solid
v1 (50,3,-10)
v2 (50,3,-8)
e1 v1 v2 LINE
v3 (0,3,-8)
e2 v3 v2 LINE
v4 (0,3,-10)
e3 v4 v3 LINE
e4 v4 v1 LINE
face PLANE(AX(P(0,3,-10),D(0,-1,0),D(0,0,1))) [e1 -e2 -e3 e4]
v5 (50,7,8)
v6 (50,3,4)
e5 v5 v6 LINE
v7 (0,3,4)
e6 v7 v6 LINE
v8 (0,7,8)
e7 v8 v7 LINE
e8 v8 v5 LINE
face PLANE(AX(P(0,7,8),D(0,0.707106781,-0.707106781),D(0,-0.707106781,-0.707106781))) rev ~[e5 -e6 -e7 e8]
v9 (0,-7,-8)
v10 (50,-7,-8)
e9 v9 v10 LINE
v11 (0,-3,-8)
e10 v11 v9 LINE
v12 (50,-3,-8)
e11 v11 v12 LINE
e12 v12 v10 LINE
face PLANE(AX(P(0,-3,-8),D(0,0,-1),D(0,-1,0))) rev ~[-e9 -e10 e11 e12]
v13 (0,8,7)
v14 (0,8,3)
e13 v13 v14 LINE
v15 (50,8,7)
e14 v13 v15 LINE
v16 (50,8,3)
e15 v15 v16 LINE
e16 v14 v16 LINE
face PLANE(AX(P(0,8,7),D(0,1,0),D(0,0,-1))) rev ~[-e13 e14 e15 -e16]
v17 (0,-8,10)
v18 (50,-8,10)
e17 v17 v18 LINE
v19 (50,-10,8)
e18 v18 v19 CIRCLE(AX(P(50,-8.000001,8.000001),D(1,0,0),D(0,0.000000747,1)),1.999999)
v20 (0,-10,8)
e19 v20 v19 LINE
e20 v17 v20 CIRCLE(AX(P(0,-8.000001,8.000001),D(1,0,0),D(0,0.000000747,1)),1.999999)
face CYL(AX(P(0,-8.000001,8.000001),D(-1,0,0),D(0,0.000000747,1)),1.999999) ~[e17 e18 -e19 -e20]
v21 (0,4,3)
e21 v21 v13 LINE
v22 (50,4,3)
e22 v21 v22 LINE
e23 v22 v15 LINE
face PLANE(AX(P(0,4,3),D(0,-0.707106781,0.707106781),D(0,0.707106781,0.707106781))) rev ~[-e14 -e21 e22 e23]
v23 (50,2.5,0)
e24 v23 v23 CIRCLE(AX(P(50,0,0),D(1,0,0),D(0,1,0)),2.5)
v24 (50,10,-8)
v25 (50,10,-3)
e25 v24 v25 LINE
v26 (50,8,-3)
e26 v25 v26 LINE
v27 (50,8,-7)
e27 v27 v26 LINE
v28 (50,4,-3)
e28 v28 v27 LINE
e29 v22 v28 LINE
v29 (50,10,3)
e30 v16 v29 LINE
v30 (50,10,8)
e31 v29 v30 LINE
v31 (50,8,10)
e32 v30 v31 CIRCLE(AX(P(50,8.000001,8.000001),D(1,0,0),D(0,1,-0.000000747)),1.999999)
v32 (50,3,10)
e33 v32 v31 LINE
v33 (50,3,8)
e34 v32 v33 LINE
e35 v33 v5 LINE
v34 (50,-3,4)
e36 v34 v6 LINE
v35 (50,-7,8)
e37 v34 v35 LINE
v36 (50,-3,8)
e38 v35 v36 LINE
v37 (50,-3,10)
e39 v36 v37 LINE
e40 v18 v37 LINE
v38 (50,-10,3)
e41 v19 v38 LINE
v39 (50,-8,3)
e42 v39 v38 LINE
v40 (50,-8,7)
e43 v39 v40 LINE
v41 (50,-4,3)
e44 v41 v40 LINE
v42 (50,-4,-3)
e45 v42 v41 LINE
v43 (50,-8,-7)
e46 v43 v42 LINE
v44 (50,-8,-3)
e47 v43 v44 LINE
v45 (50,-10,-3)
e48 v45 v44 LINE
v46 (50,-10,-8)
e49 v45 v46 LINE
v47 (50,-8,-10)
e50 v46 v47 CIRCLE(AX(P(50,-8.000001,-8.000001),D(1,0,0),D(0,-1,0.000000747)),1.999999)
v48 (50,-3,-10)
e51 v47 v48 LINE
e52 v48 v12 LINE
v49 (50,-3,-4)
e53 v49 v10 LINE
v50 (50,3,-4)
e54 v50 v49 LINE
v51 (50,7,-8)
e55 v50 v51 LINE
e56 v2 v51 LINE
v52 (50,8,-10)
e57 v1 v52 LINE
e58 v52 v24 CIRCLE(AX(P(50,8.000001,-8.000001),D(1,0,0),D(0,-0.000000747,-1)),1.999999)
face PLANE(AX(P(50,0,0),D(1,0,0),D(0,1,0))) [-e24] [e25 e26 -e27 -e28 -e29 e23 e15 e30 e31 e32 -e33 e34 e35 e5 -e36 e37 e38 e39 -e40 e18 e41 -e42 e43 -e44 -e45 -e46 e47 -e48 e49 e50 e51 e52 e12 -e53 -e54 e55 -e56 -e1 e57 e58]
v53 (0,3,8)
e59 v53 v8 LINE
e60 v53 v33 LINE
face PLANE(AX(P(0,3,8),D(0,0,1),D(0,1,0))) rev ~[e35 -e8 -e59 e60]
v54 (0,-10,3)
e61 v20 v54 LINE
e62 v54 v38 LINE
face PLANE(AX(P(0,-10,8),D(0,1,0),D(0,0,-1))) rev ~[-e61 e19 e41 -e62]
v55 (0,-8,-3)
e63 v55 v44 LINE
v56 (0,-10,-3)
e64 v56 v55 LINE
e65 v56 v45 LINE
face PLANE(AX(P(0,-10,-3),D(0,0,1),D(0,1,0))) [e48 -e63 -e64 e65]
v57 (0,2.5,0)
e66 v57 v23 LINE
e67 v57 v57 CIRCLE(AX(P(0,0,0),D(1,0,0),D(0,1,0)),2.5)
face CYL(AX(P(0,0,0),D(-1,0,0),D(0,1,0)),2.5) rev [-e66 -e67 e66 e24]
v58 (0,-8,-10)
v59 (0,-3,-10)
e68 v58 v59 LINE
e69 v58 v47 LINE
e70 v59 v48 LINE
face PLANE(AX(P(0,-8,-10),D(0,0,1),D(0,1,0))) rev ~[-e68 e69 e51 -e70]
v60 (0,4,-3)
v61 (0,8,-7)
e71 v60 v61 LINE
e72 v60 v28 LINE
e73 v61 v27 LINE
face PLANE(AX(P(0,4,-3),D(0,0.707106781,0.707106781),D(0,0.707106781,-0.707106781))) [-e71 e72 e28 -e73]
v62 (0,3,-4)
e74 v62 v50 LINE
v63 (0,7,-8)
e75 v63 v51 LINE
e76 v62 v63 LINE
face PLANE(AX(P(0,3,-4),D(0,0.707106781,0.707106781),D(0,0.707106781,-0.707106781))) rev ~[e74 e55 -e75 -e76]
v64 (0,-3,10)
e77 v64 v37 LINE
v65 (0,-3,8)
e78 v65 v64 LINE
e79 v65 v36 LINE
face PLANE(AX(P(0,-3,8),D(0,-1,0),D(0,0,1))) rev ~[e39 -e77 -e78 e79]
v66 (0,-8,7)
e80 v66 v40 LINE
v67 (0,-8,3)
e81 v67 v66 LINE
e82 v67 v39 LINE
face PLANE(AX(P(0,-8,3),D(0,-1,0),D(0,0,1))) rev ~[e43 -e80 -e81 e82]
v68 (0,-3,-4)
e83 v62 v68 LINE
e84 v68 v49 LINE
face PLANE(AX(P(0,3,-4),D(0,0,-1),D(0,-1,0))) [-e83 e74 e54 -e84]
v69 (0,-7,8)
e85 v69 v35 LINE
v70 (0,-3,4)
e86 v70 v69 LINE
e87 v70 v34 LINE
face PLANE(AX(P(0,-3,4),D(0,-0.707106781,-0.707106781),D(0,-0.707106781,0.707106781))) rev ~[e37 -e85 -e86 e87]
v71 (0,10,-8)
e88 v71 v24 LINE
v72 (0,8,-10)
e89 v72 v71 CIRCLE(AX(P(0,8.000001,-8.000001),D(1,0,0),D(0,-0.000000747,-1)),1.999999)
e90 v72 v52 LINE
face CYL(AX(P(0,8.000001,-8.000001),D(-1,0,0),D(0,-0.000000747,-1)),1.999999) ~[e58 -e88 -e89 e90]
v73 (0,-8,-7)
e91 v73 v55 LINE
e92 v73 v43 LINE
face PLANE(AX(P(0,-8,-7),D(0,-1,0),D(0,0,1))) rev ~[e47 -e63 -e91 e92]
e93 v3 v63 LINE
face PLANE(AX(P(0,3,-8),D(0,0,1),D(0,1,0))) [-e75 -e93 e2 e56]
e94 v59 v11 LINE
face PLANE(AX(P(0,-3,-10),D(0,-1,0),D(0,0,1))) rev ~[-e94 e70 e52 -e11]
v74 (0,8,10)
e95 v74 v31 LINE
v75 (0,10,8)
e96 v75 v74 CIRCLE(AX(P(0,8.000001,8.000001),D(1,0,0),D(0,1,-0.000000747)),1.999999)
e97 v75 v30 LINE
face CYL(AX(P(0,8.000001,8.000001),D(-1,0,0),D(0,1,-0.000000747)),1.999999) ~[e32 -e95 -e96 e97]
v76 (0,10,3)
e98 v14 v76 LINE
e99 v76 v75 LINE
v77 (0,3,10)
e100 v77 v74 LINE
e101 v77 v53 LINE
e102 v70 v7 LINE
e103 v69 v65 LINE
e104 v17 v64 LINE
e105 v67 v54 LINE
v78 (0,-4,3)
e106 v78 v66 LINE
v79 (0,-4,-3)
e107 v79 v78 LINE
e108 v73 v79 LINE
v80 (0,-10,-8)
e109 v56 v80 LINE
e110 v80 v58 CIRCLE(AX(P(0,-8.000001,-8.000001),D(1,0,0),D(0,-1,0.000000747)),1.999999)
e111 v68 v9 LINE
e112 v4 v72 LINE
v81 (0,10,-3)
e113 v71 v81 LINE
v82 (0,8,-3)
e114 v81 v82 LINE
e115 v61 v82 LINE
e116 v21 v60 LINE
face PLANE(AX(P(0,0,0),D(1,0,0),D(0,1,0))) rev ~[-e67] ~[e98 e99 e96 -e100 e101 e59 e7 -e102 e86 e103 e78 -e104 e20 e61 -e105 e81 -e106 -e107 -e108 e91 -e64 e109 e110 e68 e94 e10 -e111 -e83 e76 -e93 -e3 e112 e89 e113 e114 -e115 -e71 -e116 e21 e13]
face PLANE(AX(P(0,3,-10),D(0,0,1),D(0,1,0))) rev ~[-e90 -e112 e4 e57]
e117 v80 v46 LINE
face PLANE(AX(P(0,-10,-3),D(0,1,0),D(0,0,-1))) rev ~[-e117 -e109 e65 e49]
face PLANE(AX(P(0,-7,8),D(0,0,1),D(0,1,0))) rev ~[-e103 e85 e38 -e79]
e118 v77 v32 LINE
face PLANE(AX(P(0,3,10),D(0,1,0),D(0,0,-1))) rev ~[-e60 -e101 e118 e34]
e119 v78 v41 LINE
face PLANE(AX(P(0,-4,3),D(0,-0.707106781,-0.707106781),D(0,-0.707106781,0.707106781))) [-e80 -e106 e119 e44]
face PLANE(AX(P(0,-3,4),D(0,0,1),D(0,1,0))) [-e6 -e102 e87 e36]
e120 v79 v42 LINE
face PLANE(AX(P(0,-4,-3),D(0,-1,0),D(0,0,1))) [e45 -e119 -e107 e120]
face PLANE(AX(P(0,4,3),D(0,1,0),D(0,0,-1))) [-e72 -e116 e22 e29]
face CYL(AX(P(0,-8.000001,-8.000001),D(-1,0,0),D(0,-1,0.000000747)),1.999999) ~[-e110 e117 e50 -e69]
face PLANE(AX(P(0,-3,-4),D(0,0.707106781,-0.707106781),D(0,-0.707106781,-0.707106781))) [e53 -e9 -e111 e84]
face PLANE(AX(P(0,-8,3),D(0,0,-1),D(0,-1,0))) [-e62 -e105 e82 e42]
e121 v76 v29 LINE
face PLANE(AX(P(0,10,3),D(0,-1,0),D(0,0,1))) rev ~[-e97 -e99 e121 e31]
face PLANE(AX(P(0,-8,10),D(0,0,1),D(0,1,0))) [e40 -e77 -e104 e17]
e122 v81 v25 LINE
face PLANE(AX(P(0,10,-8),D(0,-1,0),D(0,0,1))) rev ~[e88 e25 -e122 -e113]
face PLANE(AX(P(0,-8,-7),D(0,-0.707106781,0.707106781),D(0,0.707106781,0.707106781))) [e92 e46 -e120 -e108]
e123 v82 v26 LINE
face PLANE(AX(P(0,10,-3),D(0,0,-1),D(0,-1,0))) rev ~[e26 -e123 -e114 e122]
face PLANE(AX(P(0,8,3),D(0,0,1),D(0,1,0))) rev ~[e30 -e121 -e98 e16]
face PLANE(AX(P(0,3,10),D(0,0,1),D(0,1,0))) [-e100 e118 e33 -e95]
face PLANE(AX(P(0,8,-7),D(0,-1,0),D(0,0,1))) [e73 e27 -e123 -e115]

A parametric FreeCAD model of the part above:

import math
import FreeCAD as App
import Part
import Sketcher
Q = App.Units.Quantity

doc = App.newDocument("Part")
body = doc.addObject("PartDesign::Body", "Body")

# Sketch on YZ plane
sketch1 = doc.addObject("Sketcher::SketchObject", "Sketch")
body.addObject(sketch1)
sketch1.AttachmentSupport = (doc.YZ_Plane, [""])
sketch1.MapMode = "FlatFace"
sketch1.addGeometry(Part.ArcOfCircle(Part.Circle(App.Vector(-8, 8, 0), App.Vector(0, 0, 1), 2), math.radians(90), math.radians(180)), False)
sketch1.addGeometry(Part.LineSegment(App.Vector(-10, 8, 0), App.Vector(-10, 3, 0)), False)
sketch1.addGeometry(Part.LineSegment(App.Vector(-10, 3, 0), App.Vector(-8, 3, 0)), False)
sketch1.addGeometry(Part.LineSegment(App.Vector(-8, 3, 0), App.Vector(-8, 7, 0)), False)
sketch1.addGeometry(Part.LineSegment(App.Vector(-8, 7, 0), App.Vector(-4, 3, 0)), False)
sketch1.addGeometry(Part.LineSegment(App.Vector(-4, 3, 0), App.Vector(-4, -3, 0)), False)
sketch1.addGeometry(Part.LineSegment(App.Vector(-4, -3, 0), App.Vector(-8, -7, 0)), False)
sketch1.addGeometry(Part.LineSegment(App.Vector(-8, -7, 0), App.Vector(-8, -3, 0)), False)
sketch1.addGeometry(Part.LineSegment(App.Vector(-8, -3, 0), App.Vector(-10, -3, 0)), False)
sketch1.addGeometry(Part.LineSegment(App.Vector(-10, -3, 0), App.Vector(-10, -8, 0)), False)
sketch1.addGeometry(Part.ArcOfCircle(Part.Circle(App.Vector(-8, -8, 0), App.Vector(0, 0, 1), 2), math.radians(180), math.radians(270)), False)
sketch1.addGeometry(Part.LineSegment(App.Vector(-8, -10, 0), App.Vector(-3, -10, 0)), False)
sketch1.addGeometry(Part.LineSegment(App.Vector(-3, -10, 0), App.Vector(-3, -8, 0)), False)
sketch1.addGeometry(Part.LineSegment(App.Vector(-3, -8, 0), App.Vector(-7, -8, 0)), False)
sketch1.addGeometry(Part.LineSegment(App.Vector(-7, -8, 0), App.Vector(-3, -4, 0)), False)
sketch1.addGeometry(Part.LineSegment(App.Vector(-3, -4, 0), App.Vector(3, -4, 0)), False)
sketch1.addGeometry(Part.LineSegment(App.Vector(3, -4, 0), App.Vector(7, -8, 0)), False)
sketch1.addGeometry(Part.LineSegment(App.Vector(7, -8, 0), App.Vector(3, -8, 0)), False)
sketch1.addGeometry(Part.LineSegment(App.Vector(3, -8, 0), App.Vector(3, -10, 0)), False)
sketch1.addGeometry(Part.LineSegment(App.Vector(3, -10, 0), App.Vector(8, -10, 0)), False)
sketch1.addGeometry(Part.ArcOfCircle(Part.Circle(App.Vector(8, -8, 0), App.Vector(0, 0, 1), 2), math.radians(-90), math.radians(0)), False)
sketch1.addGeometry(Part.LineSegment(App.Vector(10, -8, 0), App.Vector(10, -3, 0)), False)
sketch1.addGeometry(Part.LineSegment(App.Vector(10, -3, 0), App.Vector(8, -3, 0)), False)
sketch1.addGeometry(Part.LineSegment(App.Vector(8, -3, 0), App.Vector(8, -7, 0)), False)
sketch1.addGeometry(Part.LineSegment(App.Vector(8, -7, 0), App.Vector(4, -3, 0)), False)
sketch1.addGeometry(Part.LineSegment(App.Vector(4, -3, 0), App.Vector(4, 3, 0)), False)
sketch1.addGeometry(Part.LineSegment(App.Vector(4, 3, 0), App.Vector(8, 7, 0)), False)
sketch1.addGeometry(Part.LineSegment(App.Vector(8, 7, 0), App.Vector(8, 3, 0)), False)
sketch1.addGeometry(Part.LineSegment(App.Vector(8, 3, 0), App.Vector(10, 3, 0)), False)
sketch1.addGeometry(Part.LineSegment(App.Vector(10, 3, 0), App.Vector(10, 8, 0)), False)
sketch1.addGeometry(Part.ArcOfCircle(Part.Circle(App.Vector(8, 8, 0), App.Vector(0, 0, 1), 2), math.radians(0), math.radians(90)), False)
sketch1.addGeometry(Part.LineSegment(App.Vector(8, 10, 0), App.Vector(3, 10, 0)), False)
sketch1.addGeometry(Part.LineSegment(App.Vector(3, 10, 0), App.Vector(3, 8, 0)), False)
sketch1.addGeometry(Part.LineSegment(App.Vector(3, 8, 0), App.Vector(7, 8, 0)), False)
sketch1.addGeometry(Part.LineSegment(App.Vector(7, 8, 0), App.Vector(3, 4, 0)), False)
sketch1.addGeometry(Part.LineSegment(App.Vector(3, 4, 0), App.Vector(-3, 4, 0)), False)
sketch1.addGeometry(Part.LineSegment(App.Vector(-3, 4, 0), App.Vector(-7, 8, 0)), False)
sketch1.addGeometry(Part.LineSegment(App.Vector(-7, 8, 0), App.Vector(-3, 8, 0)), False)
sketch1.addGeometry(Part.LineSegment(App.Vector(-3, 8, 0), App.Vector(-3, 10, 0)), False)
sketch1.addGeometry(Part.LineSegment(App.Vector(-3, 10, 0), App.Vector(-8, 10, 0)), False)
sketch1.addGeometry(Part.Circle(App.Vector(0, 0, 0), App.Vector(0, 0, 1), 2.5), False)
sketch1.addConstraint(Sketcher.Constraint("Tangent", 0, 2, 1, 1))
sketch1.addConstraint(Sketcher.Constraint("Coincident", 1, 2, 2, 1))
sketch1.addConstraint(Sketcher.Constraint("Coincident", 2, 2, 3, 1))
sketch1.addConstraint(Sketcher.Constraint("Coincident", 3, 2, 4, 1))
sketch1.addConstraint(Sketcher.Constraint("Coincident", 4, 2, 5, 1))
sketch1.addConstraint(Sketcher.Constraint("Coincident", 5, 2, 6, 1))
sketch1.addConstraint(Sketcher.Constraint("Coincident", 6, 2, 7, 1))
sketch1.addConstraint(Sketcher.Constraint("Coincident", 7, 2, 8, 1))
sketch1.addConstraint(Sketcher.Constraint("Coincident", 8, 2, 9, 1))
sketch1.addConstraint(Sketcher.Constraint("Tangent", 9, 2, 10, 1))
sketch1.addConstraint(Sketcher.Constraint("Tangent", 10, 2, 11, 1))
sketch1.addConstraint(Sketcher.Constraint("Coincident", 11, 2, 12, 1))
sketch1.addConstraint(Sketcher.Constraint("Coincident", 12, 2, 13, 1))
sketch1.addConstraint(Sketcher.Constraint("Coincident", 13, 2, 14, 1))
sketch1.addConstraint(Sketcher.Constraint("Coincident", 14, 2, 15, 1))
sketch1.addConstraint(Sketcher.Constraint("Coincident", 15, 2, 16, 1))
sketch1.addConstraint(Sketcher.Constraint("Coincident", 16, 2, 17, 1))
sketch1.addConstraint(Sketcher.Constraint("Coincident", 17, 2, 18, 1))
sketch1.addConstraint(Sketcher.Constraint("Coincident", 18, 2, 19, 1))
sketch1.addConstraint(Sketcher.Constraint("Tangent", 19, 2, 20, 1))
sketch1.addConstraint(Sketcher.Constraint("Tangent", 20, 2, 21, 1))
sketch1.addConstraint(Sketcher.Constraint("Coincident", 21, 2, 22, 1))
sketch1.addConstraint(Sketcher.Constraint("Coincident", 22, 2, 23, 1))
sketch1.addConstraint(Sketcher.Constraint("Coincident", 23, 2, 24, 1))
sketch1.addConstraint(Sketcher.Constraint("Coincident", 24, 2, 25, 1))
sketch1.addConstraint(Sketcher.Constraint("Coincident", 25, 2, 26, 1))
sketch1.addConstraint(Sketcher.Constraint("Coincident", 26, 2, 27, 1))
sketch1.addConstraint(Sketcher.Constraint("Coincident", 27, 2, 28, 1))
sketch1.addConstraint(Sketcher.Constraint("Coincident", 28, 2, 29, 1))
sketch1.addConstraint(Sketcher.Constraint("Tangent", 29, 2, 30, 1))
sketch1.addConstraint(Sketcher.Constraint("Tangent", 30, 2, 31, 1))
sketch1.addConstraint(Sketcher.Constraint("Coincident", 31, 2, 32, 1))
sketch1.addConstraint(Sketcher.Constraint("Coincident", 32, 2, 33, 1))
sketch1.addConstraint(Sketcher.Constraint("Coincident", 33, 2, 34, 1))
sketch1.addConstraint(Sketcher.Constraint("Coincident", 34, 2, 35, 1))
sketch1.addConstraint(Sketcher.Constraint("Coincident", 35, 2, 36, 1))
sketch1.addConstraint(Sketcher.Constraint("Coincident", 36, 2, 37, 1))
sketch1.addConstraint(Sketcher.Constraint("Coincident", 37, 2, 38, 1))
sketch1.addConstraint(Sketcher.Constraint("Coincident", 38, 2, 39, 1))
sketch1.addConstraint(Sketcher.Constraint("Tangent", 39, 2, 0, 1))
sketch1.addConstraint(Sketcher.Constraint("Vertical", 1))
sketch1.addConstraint(Sketcher.Constraint("Horizontal", 2))
sketch1.addConstraint(Sketcher.Constraint("Vertical", 3))
sketch1.addConstraint(Sketcher.Constraint("Vertical", 5))
sketch1.addConstraint(Sketcher.Constraint("Vertical", 7))
sketch1.addConstraint(Sketcher.Constraint("Horizontal", 8))
sketch1.addConstraint(Sketcher.Constraint("Vertical", 9))
sketch1.addConstraint(Sketcher.Constraint("Horizontal", 11))
sketch1.addConstraint(Sketcher.Constraint("Vertical", 12))
sketch1.addConstraint(Sketcher.Constraint("Horizontal", 13))
sketch1.addConstraint(Sketcher.Constraint("Horizontal", 15))
sketch1.addConstraint(Sketcher.Constraint("Horizontal", 17))
sketch1.addConstraint(Sketcher.Constraint("Vertical", 18))
sketch1.addConstraint(Sketcher.Constraint("Horizontal", 19))
sketch1.addConstraint(Sketcher.Constraint("Vertical", 21))
sketch1.addConstraint(Sketcher.Constraint("Horizontal", 22))
sketch1.addConstraint(Sketcher.Constraint("Vertical", 23))
sketch1.addConstraint(Sketcher.Constraint("Vertical", 25))
sketch1.addConstraint(Sketcher.Constraint("Vertical", 27))
sketch1.addConstraint(Sketcher.Constraint("Horizontal", 28))
sketch1.addConstraint(Sketcher.Constraint("Vertical", 29))
sketch1.addConstraint(Sketcher.Constraint("Horizontal", 31))
sketch1.addConstraint(Sketcher.Constraint("Vertical", 32))
sketch1.addConstraint(Sketcher.Constraint("Horizontal", 33))
sketch1.addConstraint(Sketcher.Constraint("Horizontal", 35))
sketch1.addConstraint(Sketcher.Constraint("Horizontal", 37))
sketch1.addConstraint(Sketcher.Constraint("Vertical", 38))
sketch1.addConstraint(Sketcher.Constraint("Horizontal", 39))
sketch1.addConstraint(Sketcher.Constraint("Coincident", 40, 3, -1, 1))
sketch1.addConstraint(Sketcher.Constraint("Equal", 0, 10))
sketch1.addConstraint(Sketcher.Constraint("Equal", 10, 20))
sketch1.addConstraint(Sketcher.Constraint("Equal", 20, 30))
sketch1.addConstraint(Sketcher.Constraint("Symmetric", 0, 3, 20, 3, -1, 1))
sketch1.addConstraint(Sketcher.Constraint("Symmetric", 10, 3, 30, 3, -1, 1))
sketch1.addConstraint(Sketcher.Constraint("Symmetric", 2, 2, 22, 2, -1, 1))
sketch1.addConstraint(Sketcher.Constraint("Symmetric", 4, 2, 24, 2, -1, 1))
sketch1.addConstraint(Sketcher.Constraint("Symmetric", 6, 2, 26, 2, -1, 1))
sketch1.addConstraint(Sketcher.Constraint("Symmetric", 12, 2, 32, 2, -1, 1))
sketch1.addConstraint(Sketcher.Constraint("Symmetric", 14, 2, 34, 2, -1, 1))
sketch1.addConstraint(Sketcher.Constraint("Symmetric", 16, 2, 36, 2, -1, 1))
sketch1.addConstraint(Sketcher.Constraint("Symmetric", 10, 3, 20, 3, -2))
sketch1.addConstraint(Sketcher.Constraint("Symmetric", 13, 2, 16, 2, -2))
sketch1.addConstraint(Sketcher.Constraint("Symmetric", 7, 2, 22, 2, -2))
sketch1.addConstraint(Sketcher.Constraint("Perpendicular", 4, 6))
sketch1.addConstraint(Sketcher.Constraint("Parallel", 6, 14))
sketch1.addConstraint(Sketcher.Constraint("Perpendicular", 14, 16))
sketch1.addConstraint(Sketcher.Constraint("Parallel", 16, 24))
sketch1.addConstraint(Sketcher.Constraint("Perpendicular", 24, 26))
sketch1.addConstraint(Sketcher.Constraint("Parallel", 26, 34))
sketch1.addConstraint(Sketcher.Constraint("Perpendicular", 34, 36))
sketch1.addConstraint(Sketcher.Constraint("Horizontal", 2, 2, 4, 2))
sketch1.addConstraint(Sketcher.Constraint("Horizontal", 5, 2, 7, 2))
sketch1.addConstraint(Sketcher.Constraint("Horizontal", 9, 2, 12, 2))
sketch1.addConstraint(Sketcher.Constraint("Horizontal", 6, 2, 23, 2))
sketch1.addConstraint(Sketcher.Constraint("Horizontal", 25, 2, 27, 2))
sketch1.addConstraint(Sketcher.Constraint("Vertical", 10, 3, 2, 2))
sketch1.addConstraint(Sketcher.Constraint("Vertical", 12, 2, 14, 2))
sketch1.addConstraint(Sketcher.Constraint("Vertical", 15, 2, 17, 2))
sketch1.addConstraint(Sketcher.Constraint("Vertical", 35, 2, 37, 2))
sketch1.addConstraint(Sketcher.Constraint("Equal", 39, 1))
sketch1.addConstraint(Sketcher.Constraint("Equal", 37, 3))
sketch1.addConstraint(Sketcher.Constraint("Equal", 35, 5))
sketch1.addConstraint(Sketcher.Constraint("Diameter", 40, Q("5 mm")))
sketch1.addConstraint(Sketcher.Constraint("Radius", 0, Q("1.999999 mm")))
sketch1.addConstraint(Sketcher.Constraint("DistanceX", 11, 1, 11, 2, Q("5 mm")))
sketch1.addConstraint(Sketcher.Constraint("DistanceX", 13, 2, 13, 1, Q("4 mm")))
sketch1.addConstraint(Sketcher.Constraint("DistanceX", 15, 1, 15, 2, Q("6 mm")))
pad1 = doc.addObject("PartDesign::Pad", "Pad")
body.addObject(pad1)
pad1.Profile = sketch1
pad1.Length = 50

doc.recompute()
